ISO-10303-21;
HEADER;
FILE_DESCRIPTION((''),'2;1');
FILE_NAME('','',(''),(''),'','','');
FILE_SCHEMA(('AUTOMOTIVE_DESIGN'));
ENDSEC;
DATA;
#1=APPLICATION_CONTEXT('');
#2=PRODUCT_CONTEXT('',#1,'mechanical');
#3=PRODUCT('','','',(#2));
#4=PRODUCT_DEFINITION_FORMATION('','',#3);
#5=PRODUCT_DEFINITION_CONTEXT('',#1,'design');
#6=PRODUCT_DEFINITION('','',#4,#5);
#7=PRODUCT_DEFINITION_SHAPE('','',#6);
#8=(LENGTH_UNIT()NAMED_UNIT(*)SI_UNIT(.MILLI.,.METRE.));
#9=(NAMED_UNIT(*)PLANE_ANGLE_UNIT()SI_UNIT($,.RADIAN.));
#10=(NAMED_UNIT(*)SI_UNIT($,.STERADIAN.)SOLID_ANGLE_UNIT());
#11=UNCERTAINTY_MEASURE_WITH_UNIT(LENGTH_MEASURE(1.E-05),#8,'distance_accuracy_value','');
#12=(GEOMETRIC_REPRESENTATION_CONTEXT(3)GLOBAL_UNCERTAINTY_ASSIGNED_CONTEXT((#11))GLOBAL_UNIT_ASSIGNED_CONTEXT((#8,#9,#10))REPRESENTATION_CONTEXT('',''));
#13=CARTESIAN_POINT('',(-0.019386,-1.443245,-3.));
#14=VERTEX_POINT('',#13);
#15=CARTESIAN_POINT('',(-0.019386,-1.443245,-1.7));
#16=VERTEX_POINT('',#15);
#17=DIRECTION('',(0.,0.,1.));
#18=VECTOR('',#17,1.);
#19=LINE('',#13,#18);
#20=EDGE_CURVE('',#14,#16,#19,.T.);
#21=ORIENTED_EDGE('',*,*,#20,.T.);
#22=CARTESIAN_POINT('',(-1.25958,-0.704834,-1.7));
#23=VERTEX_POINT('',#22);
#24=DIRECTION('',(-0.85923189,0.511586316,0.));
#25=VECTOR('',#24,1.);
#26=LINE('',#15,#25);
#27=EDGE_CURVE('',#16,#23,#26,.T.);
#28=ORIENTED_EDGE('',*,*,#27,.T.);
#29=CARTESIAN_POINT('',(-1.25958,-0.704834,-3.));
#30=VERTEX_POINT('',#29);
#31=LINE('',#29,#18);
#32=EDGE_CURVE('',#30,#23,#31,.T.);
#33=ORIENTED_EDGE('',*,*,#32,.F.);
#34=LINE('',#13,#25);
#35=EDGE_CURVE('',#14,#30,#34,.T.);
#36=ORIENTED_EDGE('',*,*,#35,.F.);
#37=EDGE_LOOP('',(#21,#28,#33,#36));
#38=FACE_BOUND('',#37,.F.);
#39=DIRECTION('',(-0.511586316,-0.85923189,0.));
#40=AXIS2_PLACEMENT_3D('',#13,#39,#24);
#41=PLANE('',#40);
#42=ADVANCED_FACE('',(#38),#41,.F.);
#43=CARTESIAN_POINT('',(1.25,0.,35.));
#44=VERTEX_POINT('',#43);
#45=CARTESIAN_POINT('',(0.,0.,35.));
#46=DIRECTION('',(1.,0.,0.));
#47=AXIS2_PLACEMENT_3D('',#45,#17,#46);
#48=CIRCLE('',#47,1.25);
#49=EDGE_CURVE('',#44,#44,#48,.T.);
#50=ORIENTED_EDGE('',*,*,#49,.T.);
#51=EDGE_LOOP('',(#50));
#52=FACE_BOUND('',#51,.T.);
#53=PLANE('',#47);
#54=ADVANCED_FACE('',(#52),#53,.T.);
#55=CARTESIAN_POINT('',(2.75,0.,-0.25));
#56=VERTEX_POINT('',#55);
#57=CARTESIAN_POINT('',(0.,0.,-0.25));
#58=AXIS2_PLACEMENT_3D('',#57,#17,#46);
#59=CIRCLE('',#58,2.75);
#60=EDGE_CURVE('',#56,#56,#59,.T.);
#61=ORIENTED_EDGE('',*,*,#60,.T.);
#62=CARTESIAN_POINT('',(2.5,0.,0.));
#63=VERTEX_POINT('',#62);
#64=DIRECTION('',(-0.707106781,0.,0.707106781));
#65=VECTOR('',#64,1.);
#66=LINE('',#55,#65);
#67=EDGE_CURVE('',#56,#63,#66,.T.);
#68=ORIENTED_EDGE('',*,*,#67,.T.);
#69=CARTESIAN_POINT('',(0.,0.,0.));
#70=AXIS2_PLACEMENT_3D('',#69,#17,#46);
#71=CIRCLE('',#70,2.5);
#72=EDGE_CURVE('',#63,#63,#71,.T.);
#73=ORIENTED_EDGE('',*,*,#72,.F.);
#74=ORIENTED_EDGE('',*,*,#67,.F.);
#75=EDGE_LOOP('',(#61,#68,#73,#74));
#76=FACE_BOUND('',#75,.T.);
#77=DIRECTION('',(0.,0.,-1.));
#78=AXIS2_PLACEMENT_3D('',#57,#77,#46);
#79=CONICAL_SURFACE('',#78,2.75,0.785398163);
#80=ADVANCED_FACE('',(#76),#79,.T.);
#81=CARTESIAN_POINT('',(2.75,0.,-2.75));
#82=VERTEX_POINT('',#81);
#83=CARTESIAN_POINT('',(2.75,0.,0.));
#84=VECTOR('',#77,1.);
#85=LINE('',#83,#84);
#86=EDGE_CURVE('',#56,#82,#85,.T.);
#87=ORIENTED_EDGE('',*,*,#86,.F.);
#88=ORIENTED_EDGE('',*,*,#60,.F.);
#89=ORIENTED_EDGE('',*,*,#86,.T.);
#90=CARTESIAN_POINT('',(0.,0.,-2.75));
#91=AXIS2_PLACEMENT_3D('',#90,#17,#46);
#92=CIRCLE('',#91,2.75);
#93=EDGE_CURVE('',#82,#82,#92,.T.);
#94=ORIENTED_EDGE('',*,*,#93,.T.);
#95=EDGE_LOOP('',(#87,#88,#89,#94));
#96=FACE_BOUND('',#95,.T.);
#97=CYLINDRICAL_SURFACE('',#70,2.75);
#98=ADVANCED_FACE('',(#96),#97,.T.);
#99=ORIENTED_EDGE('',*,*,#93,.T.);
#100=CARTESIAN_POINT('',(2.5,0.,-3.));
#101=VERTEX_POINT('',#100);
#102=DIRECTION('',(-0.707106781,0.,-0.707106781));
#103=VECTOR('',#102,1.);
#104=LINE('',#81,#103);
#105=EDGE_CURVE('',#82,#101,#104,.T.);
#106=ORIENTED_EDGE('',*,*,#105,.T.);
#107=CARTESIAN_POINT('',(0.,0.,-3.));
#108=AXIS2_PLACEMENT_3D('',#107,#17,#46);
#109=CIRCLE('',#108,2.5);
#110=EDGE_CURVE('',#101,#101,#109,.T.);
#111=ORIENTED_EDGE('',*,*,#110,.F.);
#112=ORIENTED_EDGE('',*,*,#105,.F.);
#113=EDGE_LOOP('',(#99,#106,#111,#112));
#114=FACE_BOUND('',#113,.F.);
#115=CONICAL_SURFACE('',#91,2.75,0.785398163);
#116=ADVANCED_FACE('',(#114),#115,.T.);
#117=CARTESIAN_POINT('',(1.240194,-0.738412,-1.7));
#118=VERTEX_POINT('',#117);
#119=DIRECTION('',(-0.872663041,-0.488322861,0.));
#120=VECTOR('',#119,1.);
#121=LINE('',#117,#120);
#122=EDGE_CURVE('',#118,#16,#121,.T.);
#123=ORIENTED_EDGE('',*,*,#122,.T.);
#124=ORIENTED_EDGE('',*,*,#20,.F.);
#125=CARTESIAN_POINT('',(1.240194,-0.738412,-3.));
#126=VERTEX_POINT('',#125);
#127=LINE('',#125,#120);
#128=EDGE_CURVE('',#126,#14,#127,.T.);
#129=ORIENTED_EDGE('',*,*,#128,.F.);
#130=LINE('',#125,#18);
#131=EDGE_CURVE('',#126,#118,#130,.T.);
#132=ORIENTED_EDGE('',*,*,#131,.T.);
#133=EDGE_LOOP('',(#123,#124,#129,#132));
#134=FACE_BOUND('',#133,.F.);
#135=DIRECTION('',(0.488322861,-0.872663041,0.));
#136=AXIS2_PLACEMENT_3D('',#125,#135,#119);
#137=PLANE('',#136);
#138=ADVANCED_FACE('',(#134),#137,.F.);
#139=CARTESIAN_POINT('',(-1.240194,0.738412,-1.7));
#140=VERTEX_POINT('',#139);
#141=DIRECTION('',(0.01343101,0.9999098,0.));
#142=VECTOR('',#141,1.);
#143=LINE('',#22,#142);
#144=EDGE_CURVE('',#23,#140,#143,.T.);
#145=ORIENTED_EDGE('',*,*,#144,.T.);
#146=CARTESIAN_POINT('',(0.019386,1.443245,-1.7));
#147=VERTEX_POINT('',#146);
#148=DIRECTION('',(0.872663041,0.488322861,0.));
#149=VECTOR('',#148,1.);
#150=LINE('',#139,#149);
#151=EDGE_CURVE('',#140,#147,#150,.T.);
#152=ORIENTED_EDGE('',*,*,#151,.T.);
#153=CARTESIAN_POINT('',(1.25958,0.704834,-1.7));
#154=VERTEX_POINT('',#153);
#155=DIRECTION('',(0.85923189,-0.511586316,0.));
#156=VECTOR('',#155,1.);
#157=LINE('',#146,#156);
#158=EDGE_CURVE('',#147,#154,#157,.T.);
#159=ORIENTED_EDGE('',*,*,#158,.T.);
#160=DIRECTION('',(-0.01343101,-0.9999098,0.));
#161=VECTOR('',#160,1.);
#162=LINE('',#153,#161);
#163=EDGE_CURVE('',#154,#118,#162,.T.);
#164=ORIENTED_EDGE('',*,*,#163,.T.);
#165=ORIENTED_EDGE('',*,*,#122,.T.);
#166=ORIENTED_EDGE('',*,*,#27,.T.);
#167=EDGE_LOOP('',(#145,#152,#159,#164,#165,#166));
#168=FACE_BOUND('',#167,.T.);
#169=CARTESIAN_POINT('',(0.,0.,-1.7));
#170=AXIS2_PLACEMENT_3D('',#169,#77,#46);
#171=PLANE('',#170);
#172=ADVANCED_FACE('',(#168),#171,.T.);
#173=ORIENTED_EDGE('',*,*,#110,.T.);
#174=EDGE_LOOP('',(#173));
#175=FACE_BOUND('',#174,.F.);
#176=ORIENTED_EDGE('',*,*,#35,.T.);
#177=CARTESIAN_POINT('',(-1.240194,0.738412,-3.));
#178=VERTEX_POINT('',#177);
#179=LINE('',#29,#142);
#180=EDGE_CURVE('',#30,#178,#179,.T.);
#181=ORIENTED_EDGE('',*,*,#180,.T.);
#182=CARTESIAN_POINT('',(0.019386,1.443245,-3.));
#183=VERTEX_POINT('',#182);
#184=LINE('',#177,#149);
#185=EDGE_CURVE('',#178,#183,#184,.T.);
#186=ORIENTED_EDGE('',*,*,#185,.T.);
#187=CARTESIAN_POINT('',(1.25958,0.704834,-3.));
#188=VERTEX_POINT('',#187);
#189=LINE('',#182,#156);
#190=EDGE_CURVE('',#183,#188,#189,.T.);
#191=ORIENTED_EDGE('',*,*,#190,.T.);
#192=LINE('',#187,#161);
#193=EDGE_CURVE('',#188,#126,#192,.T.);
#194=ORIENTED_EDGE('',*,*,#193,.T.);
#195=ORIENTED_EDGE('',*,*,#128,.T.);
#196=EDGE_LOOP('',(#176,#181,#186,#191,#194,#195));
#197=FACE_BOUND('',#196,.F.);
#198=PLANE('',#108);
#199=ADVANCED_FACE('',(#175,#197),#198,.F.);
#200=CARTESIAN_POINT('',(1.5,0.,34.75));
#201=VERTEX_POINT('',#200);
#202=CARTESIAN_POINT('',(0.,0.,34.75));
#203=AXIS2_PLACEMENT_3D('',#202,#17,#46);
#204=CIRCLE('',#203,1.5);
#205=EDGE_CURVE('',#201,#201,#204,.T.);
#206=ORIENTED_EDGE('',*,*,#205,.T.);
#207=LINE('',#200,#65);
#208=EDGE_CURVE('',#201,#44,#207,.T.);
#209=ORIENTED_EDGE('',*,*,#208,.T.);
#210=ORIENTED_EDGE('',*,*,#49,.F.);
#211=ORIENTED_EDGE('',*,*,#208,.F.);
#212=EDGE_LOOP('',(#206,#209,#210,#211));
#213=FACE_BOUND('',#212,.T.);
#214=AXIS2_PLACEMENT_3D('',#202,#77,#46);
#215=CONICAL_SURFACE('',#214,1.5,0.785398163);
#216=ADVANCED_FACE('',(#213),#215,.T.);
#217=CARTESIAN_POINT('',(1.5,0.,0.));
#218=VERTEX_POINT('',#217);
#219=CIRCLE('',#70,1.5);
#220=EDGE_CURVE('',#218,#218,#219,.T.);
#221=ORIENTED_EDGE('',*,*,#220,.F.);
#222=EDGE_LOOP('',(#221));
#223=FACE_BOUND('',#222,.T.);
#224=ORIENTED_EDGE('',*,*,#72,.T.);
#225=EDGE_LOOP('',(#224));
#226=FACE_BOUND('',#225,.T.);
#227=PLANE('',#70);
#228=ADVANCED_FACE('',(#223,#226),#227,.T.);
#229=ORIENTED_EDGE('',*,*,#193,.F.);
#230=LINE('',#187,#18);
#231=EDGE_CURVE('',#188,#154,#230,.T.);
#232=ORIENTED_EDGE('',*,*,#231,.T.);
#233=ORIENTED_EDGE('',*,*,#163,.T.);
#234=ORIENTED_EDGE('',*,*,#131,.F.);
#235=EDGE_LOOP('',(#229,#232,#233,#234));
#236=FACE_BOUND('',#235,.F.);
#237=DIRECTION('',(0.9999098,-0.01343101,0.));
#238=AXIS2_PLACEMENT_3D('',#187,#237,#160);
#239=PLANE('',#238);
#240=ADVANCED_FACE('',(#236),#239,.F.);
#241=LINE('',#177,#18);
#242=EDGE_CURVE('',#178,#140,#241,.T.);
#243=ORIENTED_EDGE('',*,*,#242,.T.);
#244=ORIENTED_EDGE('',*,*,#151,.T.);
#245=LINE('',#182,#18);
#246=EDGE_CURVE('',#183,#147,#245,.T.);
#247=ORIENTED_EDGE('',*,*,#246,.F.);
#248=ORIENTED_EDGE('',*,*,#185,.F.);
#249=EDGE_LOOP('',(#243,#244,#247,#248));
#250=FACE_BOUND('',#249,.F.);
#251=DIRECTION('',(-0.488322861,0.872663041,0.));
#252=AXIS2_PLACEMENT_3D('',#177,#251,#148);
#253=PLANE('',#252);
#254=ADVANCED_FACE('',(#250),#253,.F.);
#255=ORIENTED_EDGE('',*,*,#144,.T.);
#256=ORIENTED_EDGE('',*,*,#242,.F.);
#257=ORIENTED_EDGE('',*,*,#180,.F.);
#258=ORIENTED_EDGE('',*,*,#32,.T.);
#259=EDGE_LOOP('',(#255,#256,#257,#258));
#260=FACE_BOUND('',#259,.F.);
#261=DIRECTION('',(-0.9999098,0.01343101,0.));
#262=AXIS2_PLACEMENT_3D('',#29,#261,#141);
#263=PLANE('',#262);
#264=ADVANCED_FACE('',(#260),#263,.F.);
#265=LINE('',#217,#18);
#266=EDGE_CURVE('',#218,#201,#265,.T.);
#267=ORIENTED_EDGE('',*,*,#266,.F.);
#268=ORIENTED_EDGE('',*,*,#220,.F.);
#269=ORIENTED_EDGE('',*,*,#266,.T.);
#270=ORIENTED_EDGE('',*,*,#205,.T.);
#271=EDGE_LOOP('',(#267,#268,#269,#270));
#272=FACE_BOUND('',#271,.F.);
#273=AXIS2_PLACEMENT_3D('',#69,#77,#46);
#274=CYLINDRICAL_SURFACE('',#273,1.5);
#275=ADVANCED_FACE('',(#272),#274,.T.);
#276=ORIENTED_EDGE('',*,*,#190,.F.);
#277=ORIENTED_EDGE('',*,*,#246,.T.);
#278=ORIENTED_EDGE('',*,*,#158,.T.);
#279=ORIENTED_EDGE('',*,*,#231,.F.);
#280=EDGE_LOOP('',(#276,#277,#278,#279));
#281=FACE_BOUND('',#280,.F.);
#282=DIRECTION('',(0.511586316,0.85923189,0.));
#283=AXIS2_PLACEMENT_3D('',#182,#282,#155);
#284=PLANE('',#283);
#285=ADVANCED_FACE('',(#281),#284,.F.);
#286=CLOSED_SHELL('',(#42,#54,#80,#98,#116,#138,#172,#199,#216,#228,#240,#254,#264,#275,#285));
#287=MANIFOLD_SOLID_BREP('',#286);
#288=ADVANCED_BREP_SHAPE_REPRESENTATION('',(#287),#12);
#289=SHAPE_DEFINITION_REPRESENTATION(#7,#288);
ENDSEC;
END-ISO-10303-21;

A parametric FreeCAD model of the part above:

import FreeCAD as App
import Part
import Sketcher
Q = App.Units.Quantity


def edges_at(feature, points):
    """Names of the edges that pass closest to the given points."""
    edges = feature.Shape.Edges
    near = lambda p: min(range(len(edges)), key=lambda i: edges[i].distToShape(Part.Vertex(*p))[0])
    return sorted({f"Edge{near(p) + 1}" for p in points})

doc = App.newDocument("Part")
body = doc.addObject("PartDesign::Body", "Body")

# Sketch on XY plane
sketch1 = doc.addObject("Sketcher::SketchObject", "Sketch")
body.addObject(sketch1)
sketch1.AttachmentSupport = (doc.XY_Plane, [""])
sketch1.MapMode = "FlatFace"
sketch1.addGeometry(Part.Circle(App.Vector(0, 0, 0), App.Vector(0, 0, 1), 1.5), False)
sketch1.addConstraint([
    Sketcher.Constraint("Coincident", 0, 3, -1, 1),
    Sketcher.Constraint("Diameter", 0, Q("3 mm")),
])
pad1 = doc.addObject("PartDesign::Pad", "Pad")
body.addObject(pad1)
pad1.Profile = sketch1
pad1.Length = 35

# Sketch on XY plane
sketch2 = doc.addObject("Sketcher::SketchObject", "Sketch001")
body.addObject(sketch2)
sketch2.AttachmentSupport = (doc.XY_Plane, [""])
sketch2.MapMode = "FlatFace"
sketch2.addGeometry(Part.Circle(App.Vector(0, 0, 0), App.Vector(0, 0, 1), 2.8), False)
sketch2.addConstraint([
    Sketcher.Constraint("Coincident", 0, 3, -1, 1),
    Sketcher.Constraint("Diameter", 0, Q("5.5 mm")),
])
pad2 = doc.addObject("PartDesign::Pad", "Pad001")
body.addObject(pad2)
pad2.Profile = sketch2
pad2.Length = 3
pad2.Reversed = True

# Sketch on XY plane
sketch3 = doc.addObject("Sketcher::SketchObject", "Sketch002")
body.addObject(sketch3)
sketch3.AttachmentSupport = (doc.XY_Plane, [""])
sketch3.MapMode = "FlatFace"
sketch3.AttachmentOffset = App.Placement(App.Vector(0, 0, -3), App.Rotation())
sketch3.addGeometry([
    Part.LineSegment(App.Vector(0, 1.4, 0), App.Vector(1.3, 0.7, 0)),  # 0
    Part.LineSegment(App.Vector(1.3, 0.7, 0), App.Vector(1.2, -0.7, 0)),  # 1
    Part.LineSegment(App.Vector(1.2, -0.7, 0), App.Vector(0, -1.4, 0)),  # 2
    Part.LineSegment(App.Vector(0, -1.4, 0), App.Vector(-1.3, -0.7, 0)),  # 3
    Part.LineSegment(App.Vector(-1.3, -0.7, 0), App.Vector(-1.2, 0.7, 0)),  # 4
    Part.LineSegment(App.Vector(-1.2, 0.7, 0), App.Vector(0, 1.4, 0)),  # 5
], False)
sketch3.addConstraint([
    Sketcher.Constraint("Coincident", 0, 2, 1, 1),
    Sketcher.Constraint("Coincident", 1, 2, 2, 1),
    Sketcher.Constraint("Coincident", 2, 2, 3, 1),
    Sketcher.Constraint("Coincident", 3, 2, 4, 1),
    Sketcher.Constraint("Coincident", 4, 2, 5, 1),
    Sketcher.Constraint("Coincident", 5, 2, 0, 1),
    Sketcher.Constraint("Symmetric", 0, 2, 3, 2, -1, 1),
    Sketcher.Constraint("Symmetric", 1, 2, 4, 2, -1, 1),
    Sketcher.Constraint("Symmetric", 2, 2, 5, 2, -1, 1),
    Sketcher.Constraint("Equal", 0, 1),
    Sketcher.Constraint("Equal", 1, 2),
    Sketcher.Constraint("DistanceX", -1, 1, 0, 2, Q("1.25958 mm")),
    Sketcher.Constraint("DistanceY", 1, 2, -1, 1, Q("0.738412 mm")),
    Sketcher.Constraint("DistanceX", 2, 2, 1, 2, Q("1.25958 mm")),
    Sketcher.Constraint("DistanceY", 2, 2, 0, 2, Q("2.148079 mm")),
])
pocket1 = doc.addObject("PartDesign::Pocket", "Pocket")
body.addObject(pocket1)
pocket1.Profile = sketch3
pocket1.Length = 1.3
pocket1.Reversed = True
doc.recompute()

chamfer = doc.addObject("PartDesign::Chamfer", "Chamfer")
body.addObject(chamfer)
chamfer.Base = (pocket1, edges_at(pocket1, [(-2.75, 0, -3), (-2.75, 0, 0), (-1.5, 0, 35)]))
chamfer.Size = 0.25

doc.recompute()
